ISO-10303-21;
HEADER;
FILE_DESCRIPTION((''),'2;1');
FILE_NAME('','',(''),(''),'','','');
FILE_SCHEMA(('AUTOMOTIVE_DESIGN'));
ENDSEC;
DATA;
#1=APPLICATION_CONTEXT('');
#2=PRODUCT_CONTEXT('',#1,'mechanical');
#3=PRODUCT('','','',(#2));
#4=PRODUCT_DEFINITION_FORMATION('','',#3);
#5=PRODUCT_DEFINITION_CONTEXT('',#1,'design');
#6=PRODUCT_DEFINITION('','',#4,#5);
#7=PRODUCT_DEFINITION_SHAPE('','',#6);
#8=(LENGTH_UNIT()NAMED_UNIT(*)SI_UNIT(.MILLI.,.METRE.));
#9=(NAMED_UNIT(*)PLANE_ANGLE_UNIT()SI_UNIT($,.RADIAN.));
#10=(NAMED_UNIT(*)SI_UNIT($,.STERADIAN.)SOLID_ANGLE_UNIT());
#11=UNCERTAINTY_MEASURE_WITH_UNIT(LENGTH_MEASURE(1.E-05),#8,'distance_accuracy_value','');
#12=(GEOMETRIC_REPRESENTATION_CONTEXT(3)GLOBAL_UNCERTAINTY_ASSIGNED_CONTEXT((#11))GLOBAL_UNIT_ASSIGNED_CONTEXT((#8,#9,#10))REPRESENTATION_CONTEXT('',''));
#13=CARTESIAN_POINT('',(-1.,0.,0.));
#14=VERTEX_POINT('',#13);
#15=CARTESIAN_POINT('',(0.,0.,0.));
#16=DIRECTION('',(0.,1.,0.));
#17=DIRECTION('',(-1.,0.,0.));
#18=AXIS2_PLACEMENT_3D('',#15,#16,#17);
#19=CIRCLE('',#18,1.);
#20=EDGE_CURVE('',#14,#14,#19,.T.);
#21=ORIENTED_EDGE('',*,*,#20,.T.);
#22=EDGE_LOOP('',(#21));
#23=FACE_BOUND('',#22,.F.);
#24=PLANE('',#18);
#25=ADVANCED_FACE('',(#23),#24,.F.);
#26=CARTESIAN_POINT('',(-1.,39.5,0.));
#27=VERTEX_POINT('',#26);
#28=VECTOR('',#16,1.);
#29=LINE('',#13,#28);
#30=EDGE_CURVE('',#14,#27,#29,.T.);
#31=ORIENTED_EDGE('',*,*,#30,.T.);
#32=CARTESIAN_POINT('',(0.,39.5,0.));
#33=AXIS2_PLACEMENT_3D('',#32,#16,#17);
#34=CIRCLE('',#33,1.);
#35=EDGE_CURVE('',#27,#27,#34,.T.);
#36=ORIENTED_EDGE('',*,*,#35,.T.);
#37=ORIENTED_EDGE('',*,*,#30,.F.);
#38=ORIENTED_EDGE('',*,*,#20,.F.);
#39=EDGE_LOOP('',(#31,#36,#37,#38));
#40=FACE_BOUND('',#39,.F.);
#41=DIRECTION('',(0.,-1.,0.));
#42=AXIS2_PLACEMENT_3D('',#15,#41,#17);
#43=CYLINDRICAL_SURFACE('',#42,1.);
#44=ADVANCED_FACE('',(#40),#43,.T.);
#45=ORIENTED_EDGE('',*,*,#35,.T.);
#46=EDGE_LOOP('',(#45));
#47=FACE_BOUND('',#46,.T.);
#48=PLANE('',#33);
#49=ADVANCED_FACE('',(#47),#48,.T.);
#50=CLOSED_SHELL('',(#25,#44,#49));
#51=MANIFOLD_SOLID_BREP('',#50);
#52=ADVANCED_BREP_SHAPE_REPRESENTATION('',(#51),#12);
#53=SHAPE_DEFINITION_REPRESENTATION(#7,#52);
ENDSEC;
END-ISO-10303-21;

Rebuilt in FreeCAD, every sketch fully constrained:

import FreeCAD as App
import Part
import Sketcher

V = App.Vector
Q = App.Units.Quantity

doc = App.newDocument("Part")
body = doc.addObject("PartDesign::Body", "Body")

# Sketch on XZ plane
sketch1 = body.newObject("Sketcher::SketchObject", "Sketch")
sketch1.AttachmentSupport = (doc.getObject("XZ_Plane"), [""])
sketch1.MapMode = "FlatFace"
sketch1.addGeometry(Part.Circle(V(0, 0, 0), V(0, 0, 1), 1), False)
sketch1.addConstraint([
    Sketcher.Constraint("Coincident", 0, 3, -1, 1),
    Sketcher.Constraint("Diameter", 0, Q("2 mm")),
])
pad1 = body.newObject("PartDesign::Pad", "Pad")
pad1.Profile = sketch1
pad1.Length = 39.5
pad1.Reversed = True

doc.recompute()
